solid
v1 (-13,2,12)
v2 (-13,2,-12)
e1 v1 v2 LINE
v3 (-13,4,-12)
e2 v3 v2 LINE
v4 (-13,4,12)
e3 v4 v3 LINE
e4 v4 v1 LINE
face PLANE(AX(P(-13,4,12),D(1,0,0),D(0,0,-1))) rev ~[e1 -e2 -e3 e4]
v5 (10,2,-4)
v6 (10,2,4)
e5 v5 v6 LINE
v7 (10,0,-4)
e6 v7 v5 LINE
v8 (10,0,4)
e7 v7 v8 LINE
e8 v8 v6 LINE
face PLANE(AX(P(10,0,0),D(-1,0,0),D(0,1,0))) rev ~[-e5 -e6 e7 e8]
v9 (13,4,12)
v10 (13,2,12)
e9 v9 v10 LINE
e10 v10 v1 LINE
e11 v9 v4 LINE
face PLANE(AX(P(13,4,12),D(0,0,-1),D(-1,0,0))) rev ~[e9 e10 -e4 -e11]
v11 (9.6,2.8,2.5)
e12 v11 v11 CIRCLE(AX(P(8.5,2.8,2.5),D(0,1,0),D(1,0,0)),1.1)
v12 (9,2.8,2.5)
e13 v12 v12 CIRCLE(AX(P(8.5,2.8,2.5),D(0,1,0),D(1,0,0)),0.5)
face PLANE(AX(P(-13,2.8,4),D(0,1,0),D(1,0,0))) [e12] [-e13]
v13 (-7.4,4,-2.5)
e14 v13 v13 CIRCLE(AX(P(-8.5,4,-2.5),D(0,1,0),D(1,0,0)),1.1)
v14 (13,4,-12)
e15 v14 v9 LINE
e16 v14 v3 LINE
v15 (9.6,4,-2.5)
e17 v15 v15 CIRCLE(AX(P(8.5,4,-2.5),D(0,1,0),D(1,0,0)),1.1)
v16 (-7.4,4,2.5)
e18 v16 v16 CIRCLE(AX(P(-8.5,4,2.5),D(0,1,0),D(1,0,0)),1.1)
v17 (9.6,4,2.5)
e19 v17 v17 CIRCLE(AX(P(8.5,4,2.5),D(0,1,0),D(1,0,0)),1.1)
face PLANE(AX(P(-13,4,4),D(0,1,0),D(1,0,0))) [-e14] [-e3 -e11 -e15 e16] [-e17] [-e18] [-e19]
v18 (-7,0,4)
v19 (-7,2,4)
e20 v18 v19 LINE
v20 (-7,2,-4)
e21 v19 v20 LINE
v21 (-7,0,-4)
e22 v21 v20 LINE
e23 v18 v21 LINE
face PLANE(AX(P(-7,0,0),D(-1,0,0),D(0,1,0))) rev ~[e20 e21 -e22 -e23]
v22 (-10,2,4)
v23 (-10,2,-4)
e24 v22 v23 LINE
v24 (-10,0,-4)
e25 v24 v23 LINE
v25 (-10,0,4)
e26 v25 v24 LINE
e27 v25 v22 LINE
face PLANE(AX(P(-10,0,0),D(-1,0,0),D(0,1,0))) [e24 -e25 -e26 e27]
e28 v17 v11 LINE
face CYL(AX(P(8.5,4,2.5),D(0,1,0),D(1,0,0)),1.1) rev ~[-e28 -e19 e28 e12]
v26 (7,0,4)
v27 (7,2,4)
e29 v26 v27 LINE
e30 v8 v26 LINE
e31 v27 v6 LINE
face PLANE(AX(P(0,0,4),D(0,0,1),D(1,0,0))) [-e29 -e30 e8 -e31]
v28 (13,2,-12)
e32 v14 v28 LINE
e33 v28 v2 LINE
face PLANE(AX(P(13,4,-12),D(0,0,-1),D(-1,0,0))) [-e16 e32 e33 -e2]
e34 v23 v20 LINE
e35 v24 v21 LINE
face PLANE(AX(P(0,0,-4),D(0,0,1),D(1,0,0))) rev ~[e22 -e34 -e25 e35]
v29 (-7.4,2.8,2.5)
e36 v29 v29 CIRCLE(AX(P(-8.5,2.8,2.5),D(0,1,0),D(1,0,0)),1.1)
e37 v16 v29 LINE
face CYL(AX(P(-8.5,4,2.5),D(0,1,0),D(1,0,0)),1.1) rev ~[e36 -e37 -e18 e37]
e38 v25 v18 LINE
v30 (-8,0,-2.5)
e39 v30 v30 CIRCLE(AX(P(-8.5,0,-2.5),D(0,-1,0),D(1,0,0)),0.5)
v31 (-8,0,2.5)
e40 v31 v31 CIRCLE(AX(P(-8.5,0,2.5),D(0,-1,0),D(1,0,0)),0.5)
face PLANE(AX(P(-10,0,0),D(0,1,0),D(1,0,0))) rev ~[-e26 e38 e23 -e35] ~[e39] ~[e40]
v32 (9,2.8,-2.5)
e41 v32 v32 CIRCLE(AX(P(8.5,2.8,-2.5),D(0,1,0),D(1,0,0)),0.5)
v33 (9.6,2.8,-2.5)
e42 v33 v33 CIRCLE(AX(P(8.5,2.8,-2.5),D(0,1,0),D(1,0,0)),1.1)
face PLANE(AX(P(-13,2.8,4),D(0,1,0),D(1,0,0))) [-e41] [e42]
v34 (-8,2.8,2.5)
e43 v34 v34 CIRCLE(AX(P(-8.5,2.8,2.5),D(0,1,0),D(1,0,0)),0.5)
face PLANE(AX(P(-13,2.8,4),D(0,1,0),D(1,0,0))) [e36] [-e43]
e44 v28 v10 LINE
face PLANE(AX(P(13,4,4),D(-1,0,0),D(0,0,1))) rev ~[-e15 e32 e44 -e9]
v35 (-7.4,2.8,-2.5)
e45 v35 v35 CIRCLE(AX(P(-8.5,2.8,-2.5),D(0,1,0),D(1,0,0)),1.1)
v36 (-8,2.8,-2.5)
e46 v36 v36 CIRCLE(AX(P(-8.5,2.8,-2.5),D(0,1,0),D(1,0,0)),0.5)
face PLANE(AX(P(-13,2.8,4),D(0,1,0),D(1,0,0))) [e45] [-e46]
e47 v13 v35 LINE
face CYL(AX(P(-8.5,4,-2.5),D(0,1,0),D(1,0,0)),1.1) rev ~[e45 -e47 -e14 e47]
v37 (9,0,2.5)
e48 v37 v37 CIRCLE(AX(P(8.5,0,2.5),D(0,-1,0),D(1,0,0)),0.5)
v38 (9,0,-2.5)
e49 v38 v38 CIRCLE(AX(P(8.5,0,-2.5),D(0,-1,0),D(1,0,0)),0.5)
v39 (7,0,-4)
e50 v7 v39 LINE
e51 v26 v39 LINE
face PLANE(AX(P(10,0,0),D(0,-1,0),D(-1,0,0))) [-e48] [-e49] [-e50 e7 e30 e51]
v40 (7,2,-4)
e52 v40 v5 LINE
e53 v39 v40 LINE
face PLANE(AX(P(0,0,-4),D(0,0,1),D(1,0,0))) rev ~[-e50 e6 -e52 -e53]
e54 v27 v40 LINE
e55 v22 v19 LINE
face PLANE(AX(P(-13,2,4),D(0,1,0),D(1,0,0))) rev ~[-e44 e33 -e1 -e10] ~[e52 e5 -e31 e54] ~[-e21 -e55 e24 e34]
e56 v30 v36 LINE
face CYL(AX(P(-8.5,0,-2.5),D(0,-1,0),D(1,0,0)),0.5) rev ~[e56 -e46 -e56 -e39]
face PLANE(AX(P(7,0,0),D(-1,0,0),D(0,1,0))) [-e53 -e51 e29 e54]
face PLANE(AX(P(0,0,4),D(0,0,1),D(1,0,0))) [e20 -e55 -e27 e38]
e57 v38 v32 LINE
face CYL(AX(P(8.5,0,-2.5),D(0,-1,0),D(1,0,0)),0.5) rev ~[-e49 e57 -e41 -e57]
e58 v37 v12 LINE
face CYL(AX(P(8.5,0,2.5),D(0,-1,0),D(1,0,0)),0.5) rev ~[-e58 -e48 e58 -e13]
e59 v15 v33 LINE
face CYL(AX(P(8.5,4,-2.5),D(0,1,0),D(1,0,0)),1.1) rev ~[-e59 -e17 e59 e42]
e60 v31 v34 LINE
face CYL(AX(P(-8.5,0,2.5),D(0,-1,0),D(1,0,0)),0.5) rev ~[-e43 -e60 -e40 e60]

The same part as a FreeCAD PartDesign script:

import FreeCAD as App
import Part
import Sketcher
Q = App.Units.Quantity


def add_polygon(sketch, points):
    """Adds a closed chain of lines whose ends are joined by coincident constraints."""
    first, n = sketch.GeometryCount, len(points)
    for a, b in zip(points, points[1:] + points[:1]):
        sketch.addGeometry(Part.LineSegment(App.Vector(*a, 0), App.Vector(*b, 0)), False)
    for i in range(n):
        sketch.addConstraint(Sketcher.Constraint("Coincident", first + i, 2, first + (i + 1) % n, 1))

doc = App.newDocument("Part")
body = doc.addObject("PartDesign::Body", "Body")

sketch1 = body.newObject("Sketcher::SketchObject", "Sketch")
sketch1.AttachmentSupport = (doc.getObject("XY_Plane"), [""])
sketch1.MapMode = "FlatFace"
add_polygon(sketch1, [(7, 0), (10, 0), (10, 2), (13, 2), (13, 4), (-13, 4), (-13, 2), (-10, 2), (-10, 0), (-7, 0), (-7, 2), (7, 2)])
sketch1.addConstraint([
    Sketcher.Constraint("Horizontal", 0),
    Sketcher.Constraint("Vertical", 1),
    Sketcher.Constraint("Horizontal", 2),
    Sketcher.Constraint("Vertical", 3),
    Sketcher.Constraint("Horizontal", 4),
    Sketcher.Constraint("Vertical", 5),
    Sketcher.Constraint("Horizontal", 6),
    Sketcher.Constraint("Vertical", 7),
    Sketcher.Constraint("Horizontal", 8),
    Sketcher.Constraint("Vertical", 9),
    Sketcher.Constraint("Horizontal", 10),
    Sketcher.Constraint("Vertical", 11),
    Sketcher.Constraint("Symmetric", 0, 2, 7, 2, -1, 1),
    Sketcher.Constraint("Symmetric", 2, 2, 5, 2, -2),
    Sketcher.Constraint("Symmetric", 8, 2, 11, 2, -2),
    Sketcher.Constraint("Horizontal", 6, 2, 9, 2),
    Sketcher.Constraint("Equal", 0, 2),
    Sketcher.Constraint("Equal", 1, 3),
    Sketcher.Constraint("DistanceX", 0, 1, 0, 2, Q("3 mm")),
    Sketcher.Constraint("DistanceY", 1, 1, 1, 2, Q("2 mm")),
    Sketcher.Constraint("DistanceX", -1, 1, 0, 2, Q("10 mm")),
])
pad1 = body.newObject("PartDesign::Pad", "Pad")
pad1.Profile = sketch1
pad1.Length = 8
pad1.Midplane = True

sketch2 = body.newObject("Sketcher::SketchObject", "Sketch001")
sketch2.AttachmentSupport = (doc.getObject("XZ_Plane"), [""])
sketch2.MapMode = "FlatFace"
sketch2.addGeometry([
    Part.Circle(App.Vector(-8.5, 2.5, 0), App.Vector(0, 0, 1), 0.5),
    Part.Circle(App.Vector(-8.5, -2.5, 0), App.Vector(0, 0, 1), 0.5),
    Part.Circle(App.Vector(8.5, 2.5, 0), App.Vector(0, 0, 1), 0.5),
    Part.Circle(App.Vector(8.5, -2.5, 0), App.Vector(0, 0, 1), 0.5),
], False)
sketch2.addConstraint([
    Sketcher.Constraint("Equal", 0, 1),
    Sketcher.Constraint("Equal", 1, 2),
    Sketcher.Constraint("Equal", 2, 3),
    Sketcher.Constraint("Symmetric", 1, 3, 2, 3, -1, 1),
    Sketcher.Constraint("Symmetric", 0, 3, 3, 3, -1, 1),
    Sketcher.Constraint("Symmetric", 0, 3, 2, 3, -2),
    Sketcher.Constraint("Diameter", 0, Q("1 mm")),
    Sketcher.Constraint("DistanceX", 0, 3, -1, 1, Q("8.5 mm")),
    Sketcher.Constraint("DistanceY", -1, 1, 0, 3, Q("2.5 mm")),
])
pocket1 = body.newObject("PartDesign::Pocket", "Pocket")
pocket1.Profile = sketch2
pocket1.Type = "ThroughAll"

sketch3 = body.newObject("Sketcher::SketchObject", "Sketch002")
sketch3.AttachmentSupport = (doc.getObject("XZ_Plane"), [""])
sketch3.MapMode = "FlatFace"
sketch3.AttachmentOffset = App.Placement(App.Vector(0, 0, -4), App.Rotation())
sketch3.addGeometry([
    Part.Circle(App.Vector(-8.5, -2.5, 0), App.Vector(0, 0, 1), 1.1),
    Part.Circle(App.Vector(-8.5, -2.5, 0), App.Vector(0, 0, 1), 0.5),
    Part.Circle(App.Vector(-8.5, 2.5, 0), App.Vector(0, 0, 1), 1.1),
    Part.Circle(App.Vector(-8.5, 2.5, 0), App.Vector(0, 0, 1), 0.5),
    Part.Circle(App.Vector(8.5, -2.5, 0), App.Vector(0, 0, 1), 1.1),
    Part.Circle(App.Vector(8.5, -2.5, 0), App.Vector(0, 0, 1), 0.5),
    Part.Circle(App.Vector(8.5, 2.5, 0), App.Vector(0, 0, 1), 1.1),
    Part.Circle(App.Vector(8.5, 2.5, 0), App.Vector(0, 0, 1), 0.5),
], False)
sketch3.addConstraint([
    Sketcher.Constraint("Coincident", 1, 3, 0, 3),
    Sketcher.Constraint("Coincident", 3, 3, 2, 3),
    Sketcher.Constraint("Coincident", 5, 3, 4, 3),
    Sketcher.Constraint("Coincident", 7, 3, 6, 3),
    Sketcher.Constraint("Equal", 0, 2),
    Sketcher.Constraint("Equal", 1, 3),
    Sketcher.Constraint("Equal", 2, 4),
    Sketcher.Constraint("Equal", 3, 5),
    Sketcher.Constraint("Equal", 4, 6),
    Sketcher.Constraint("Equal", 5, 7),
    Sketcher.Constraint("Symmetric", 2, 3, 4, 3, -1, 1),
    Sketcher.Constraint("Symmetric", 0, 3, 6, 3, -1, 1),
    Sketcher.Constraint("Symmetric", 0, 3, 4, 3, -2),
    Sketcher.Constraint("Diameter", 0, Q("2.2 mm")),
    Sketcher.Constraint("Diameter", 1, Q("1 mm")),
    Sketcher.Constraint("DistanceY", 0, 3, 2, 3, Q("5 mm")),
    Sketcher.Constraint("DistanceX", 0, 3, 4, 3, Q("17 mm")),
])
pocket2 = body.newObject("PartDesign::Pocket", "Pocket001")
pocket2.Profile = sketch3
pocket2.Length = 1.2
pocket2.Reversed = True

sketch4 = body.newObject("Sketcher::SketchObject", "Sketch003")
sketch4.AttachmentSupport = (doc.getObject("XZ_Plane"), [""])
sketch4.MapMode = "FlatFace"
sketch4.AttachmentOffset = App.Placement(App.Vector(0, 0, -4), App.Rotation())
add_polygon(sketch4, [(13, 4), (-13, 4), (-13, 12), (13, 12)])
add_polygon(sketch4, [(-13, -12), (-13, -4), (13, -4), (13, -12)])
sketch4.addConstraint([
    Sketcher.Constraint("Horizontal", 0),
    Sketcher.Constraint("Vertical", 1),
    Sketcher.Constraint("Horizontal", 2),
    Sketcher.Constraint("Vertical", 3),
    Sketcher.Constraint("Vertical", 4),
    Sketcher.Constraint("Horizontal", 5),
    Sketcher.Constraint("Vertical", 6),
    Sketcher.Constraint("Horizontal", 7),
    Sketcher.Constraint("Symmetric", 3, 2, 4, 2, -1, 1),
    Sketcher.Constraint("Symmetric", 1, 2, 6, 2, -1, 1),
    Sketcher.Constraint("Vertical", 1, 2, 4, 2),
    Sketcher.Constraint("DistanceX", 0, 2, 0, 1, Q("26 mm")),
    Sketcher.Constraint("DistanceY", 1, 1, 1, 2, Q("8 mm")),
    Sketcher.Constraint("DistanceY", -1, 1, 0, 2, Q("4 mm")),
])
pad2 = body.newObject("PartDesign::Pad", "Pad001")
pad2.Profile = sketch4
pad2.Length = 2

doc.recompute()
